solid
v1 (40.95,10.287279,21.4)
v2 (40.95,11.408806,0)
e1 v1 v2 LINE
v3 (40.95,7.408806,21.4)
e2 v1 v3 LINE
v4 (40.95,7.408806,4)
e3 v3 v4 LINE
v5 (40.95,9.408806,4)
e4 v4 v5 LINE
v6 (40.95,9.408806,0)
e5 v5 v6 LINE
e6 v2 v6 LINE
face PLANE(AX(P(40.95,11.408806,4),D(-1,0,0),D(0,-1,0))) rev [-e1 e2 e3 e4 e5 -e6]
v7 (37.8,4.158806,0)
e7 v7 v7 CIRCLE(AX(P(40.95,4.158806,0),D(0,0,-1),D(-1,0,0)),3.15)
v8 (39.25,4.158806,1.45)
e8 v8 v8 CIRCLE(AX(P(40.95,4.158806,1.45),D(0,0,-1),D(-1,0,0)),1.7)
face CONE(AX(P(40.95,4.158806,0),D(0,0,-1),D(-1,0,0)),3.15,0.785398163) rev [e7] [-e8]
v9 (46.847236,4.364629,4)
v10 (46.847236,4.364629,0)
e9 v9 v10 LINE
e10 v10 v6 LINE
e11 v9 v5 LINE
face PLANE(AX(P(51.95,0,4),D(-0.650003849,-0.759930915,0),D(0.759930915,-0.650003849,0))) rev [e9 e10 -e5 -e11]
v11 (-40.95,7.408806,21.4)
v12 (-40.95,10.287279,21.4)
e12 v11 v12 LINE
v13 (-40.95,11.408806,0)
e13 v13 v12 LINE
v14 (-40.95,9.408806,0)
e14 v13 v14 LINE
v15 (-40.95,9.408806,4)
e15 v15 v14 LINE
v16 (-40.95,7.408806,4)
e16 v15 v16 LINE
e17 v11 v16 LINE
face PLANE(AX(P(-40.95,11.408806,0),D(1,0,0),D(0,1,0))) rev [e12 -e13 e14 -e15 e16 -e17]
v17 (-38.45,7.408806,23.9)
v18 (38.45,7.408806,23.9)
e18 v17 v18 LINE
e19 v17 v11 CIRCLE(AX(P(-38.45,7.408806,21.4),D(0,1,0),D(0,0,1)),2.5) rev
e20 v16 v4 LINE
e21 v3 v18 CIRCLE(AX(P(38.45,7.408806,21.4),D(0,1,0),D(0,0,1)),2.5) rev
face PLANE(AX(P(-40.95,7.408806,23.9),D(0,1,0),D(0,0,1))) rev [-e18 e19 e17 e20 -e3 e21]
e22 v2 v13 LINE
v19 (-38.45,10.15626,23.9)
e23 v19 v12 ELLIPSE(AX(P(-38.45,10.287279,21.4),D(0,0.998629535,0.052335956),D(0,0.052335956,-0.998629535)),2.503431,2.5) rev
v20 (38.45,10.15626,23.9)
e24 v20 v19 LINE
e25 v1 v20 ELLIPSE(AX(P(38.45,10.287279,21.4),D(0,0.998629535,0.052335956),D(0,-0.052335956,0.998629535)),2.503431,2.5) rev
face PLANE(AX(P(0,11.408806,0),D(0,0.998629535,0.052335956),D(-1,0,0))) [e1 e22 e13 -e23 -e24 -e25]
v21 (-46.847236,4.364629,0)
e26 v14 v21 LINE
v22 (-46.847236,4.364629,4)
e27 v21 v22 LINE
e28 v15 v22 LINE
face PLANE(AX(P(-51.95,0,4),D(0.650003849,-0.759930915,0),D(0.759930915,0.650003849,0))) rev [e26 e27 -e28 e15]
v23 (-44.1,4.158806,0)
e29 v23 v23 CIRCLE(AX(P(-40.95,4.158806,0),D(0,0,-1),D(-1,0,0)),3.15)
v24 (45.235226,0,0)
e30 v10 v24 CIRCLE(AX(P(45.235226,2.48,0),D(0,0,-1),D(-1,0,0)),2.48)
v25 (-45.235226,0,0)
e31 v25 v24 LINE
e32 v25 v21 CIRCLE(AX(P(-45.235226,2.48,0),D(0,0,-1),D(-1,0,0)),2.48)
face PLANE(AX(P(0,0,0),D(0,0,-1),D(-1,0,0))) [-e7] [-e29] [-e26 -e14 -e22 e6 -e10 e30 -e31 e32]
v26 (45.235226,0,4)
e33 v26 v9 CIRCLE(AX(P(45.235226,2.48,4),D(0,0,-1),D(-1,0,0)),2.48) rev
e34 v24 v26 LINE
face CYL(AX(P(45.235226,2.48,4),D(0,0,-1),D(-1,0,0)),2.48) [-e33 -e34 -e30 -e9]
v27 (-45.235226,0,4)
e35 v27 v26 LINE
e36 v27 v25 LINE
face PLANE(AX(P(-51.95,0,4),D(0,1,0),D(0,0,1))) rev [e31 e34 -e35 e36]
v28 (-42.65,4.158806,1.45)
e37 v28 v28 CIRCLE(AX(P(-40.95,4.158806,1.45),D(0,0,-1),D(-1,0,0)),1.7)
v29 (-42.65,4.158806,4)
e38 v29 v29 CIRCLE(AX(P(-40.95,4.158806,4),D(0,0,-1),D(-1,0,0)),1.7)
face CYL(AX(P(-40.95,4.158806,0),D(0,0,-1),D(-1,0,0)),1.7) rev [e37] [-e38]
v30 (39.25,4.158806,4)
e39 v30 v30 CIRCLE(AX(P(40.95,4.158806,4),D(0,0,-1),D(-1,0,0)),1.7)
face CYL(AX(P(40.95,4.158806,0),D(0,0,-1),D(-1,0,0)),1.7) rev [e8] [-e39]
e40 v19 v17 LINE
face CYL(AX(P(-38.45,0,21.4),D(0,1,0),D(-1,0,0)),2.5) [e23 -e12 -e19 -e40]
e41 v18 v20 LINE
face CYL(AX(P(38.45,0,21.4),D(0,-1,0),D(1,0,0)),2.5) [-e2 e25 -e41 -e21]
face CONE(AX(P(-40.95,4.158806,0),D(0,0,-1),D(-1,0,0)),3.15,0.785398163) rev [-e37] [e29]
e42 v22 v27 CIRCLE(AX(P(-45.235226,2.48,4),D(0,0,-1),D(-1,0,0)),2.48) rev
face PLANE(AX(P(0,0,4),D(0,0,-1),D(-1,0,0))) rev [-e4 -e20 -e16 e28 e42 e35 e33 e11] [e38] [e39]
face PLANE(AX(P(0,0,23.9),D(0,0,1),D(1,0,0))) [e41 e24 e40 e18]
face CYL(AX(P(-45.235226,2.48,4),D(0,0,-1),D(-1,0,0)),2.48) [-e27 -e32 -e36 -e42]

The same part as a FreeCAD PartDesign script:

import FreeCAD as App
import Part
import Sketcher

V = App.Vector
Q = App.Units.Quantity


def edges_at(feature, points):
    """Names of the edges that pass closest to the given points."""
    edges = feature.Shape.Edges
    near = lambda p: min(range(len(edges)), key=lambda i: edges[i].distToShape(Part.Vertex(*p))[0])
    return sorted({f"Edge{near(p) + 1}" for p in points})

doc = App.newDocument("Part")
body = doc.addObject("PartDesign::Body", "Body")

sketch1 = doc.addObject("Sketcher::SketchObject", "Sketch")
body.addObject(sketch1)
sketch1.AttachmentSupport = (doc.XY_Plane, [""])
sketch1.MapMode = "FlatFace"
sketch1.addGeometry(Part.LineSegment(V(-52, 0, 0), V(52, 0, 0)), False)
sketch1.addGeometry(Part.LineSegment(V(52, 0, 0), V(41, 9, 0)), False)
sketch1.addGeometry(Part.LineSegment(V(41, 9, 0), V(-41, 9, 0)), False)
sketch1.addGeometry(Part.LineSegment(V(-41, 9, 0), V(-52, 0, 0)), False)
sketch1.addConstraint(Sketcher.Constraint("Coincident", 0, 2, 1, 1))
sketch1.addConstraint(Sketcher.Constraint("Coincident", 1, 2, 2, 1))
sketch1.addConstraint(Sketcher.Constraint("Coincident", 2, 2, 3, 1))
sketch1.addConstraint(Sketcher.Constraint("Coincident", 3, 2, 0, 1))
sketch1.addConstraint(Sketcher.Constraint("Horizontal", 0))
sketch1.addConstraint(Sketcher.Constraint("Horizontal", 2))
sketch1.addConstraint(Sketcher.Constraint("Symmetric", 0, 2, 3, 2, -1, 1))
sketch1.addConstraint(Sketcher.Constraint("Equal", 1, 3))
sketch1.addConstraint(Sketcher.Constraint("DistanceX", 0, 1, 0, 2, Q("103.9 mm")))
sketch1.addConstraint(Sketcher.Constraint("DistanceX", 2, 2, 2, 1, Q("81.9 mm")))
sketch1.addConstraint(Sketcher.Constraint("Distance", 1, Q("14.475 mm")))
pad1 = doc.addObject("PartDesign::Pad", "Pad")
body.addObject(pad1)
pad1.Profile = sketch1
pad1.Length = 4
doc.recompute()

fillet = doc.addObject("PartDesign::Fillet", "Fillet")
body.addObject(fillet)
fillet.Base = (pad1, edges_at(pad1, [(51.95, 0, 2), (-51.95, 0, 2)]))
fillet.Radius = 2.48

sketch2 = doc.addObject("Sketcher::SketchObject", "Sketch001")
body.addObject(sketch2)
sketch2.AttachmentSupport = (doc.XZ_Plane, [""])
sketch2.MapMode = "FlatFace"
sketch2.AttachmentOffset = App.Placement(V(0, 0, -9.408806), App.Rotation())
sketch2.addGeometry(Part.LineSegment(V(-41, 0, 0), V(-41, 4, 0)), False)
sketch2.addGeometry(Part.LineSegment(V(-41, 4, 0), V(41, 4, 0)), False)
sketch2.addGeometry(Part.LineSegment(V(41, 4, 0), V(41, 0, 0)), False)
sketch2.addGeometry(Part.LineSegment(V(41, 0, 0), V(-41, 0, 0)), False)
sketch2.addConstraint(Sketcher.Constraint("Coincident", 0, 2, 1, 1))
sketch2.addConstraint(Sketcher.Constraint("Coincident", 1, 2, 2, 1))
sketch2.addConstraint(Sketcher.Constraint("Coincident", 2, 2, 3, 1))
sketch2.addConstraint(Sketcher.Constraint("Coincident", 3, 2, 0, 1))
sketch2.addConstraint(Sketcher.Constraint("Vertical", 0))
sketch2.addConstraint(Sketcher.Constraint("Horizontal", 1))
sketch2.addConstraint(Sketcher.Constraint("Vertical", 2))
sketch2.addConstraint(Sketcher.Constraint("Horizontal", 3))
sketch2.addConstraint(Sketcher.Constraint("Symmetric", 2, 2, 3, 2, -1, 1))
sketch2.addConstraint(Sketcher.Constraint("DistanceY", 0, 1, 0, 2, Q("4 mm")))
sketch2.addConstraint(Sketcher.Constraint("DistanceX", 1, 1, 1, 2, Q("81.9 mm")))
pad2 = doc.addObject("PartDesign::Pad", "Pad001")
body.addObject(pad2)
pad2.Profile = sketch2
pad2.Length = 2
pad2.Reversed = True

sketch3 = doc.addObject("Sketcher::SketchObject", "Sketch002")
body.addObject(sketch3)
sketch3.AttachmentSupport = (doc.XY_Plane, [""])
sketch3.MapMode = "FlatFace"
sketch3.AttachmentOffset = App.Placement(V(0, 0, 4), App.Rotation())
sketch3.addGeometry(Part.LineSegment(V(-41, 11.4, 0), V(-41, 7.4, 0)), False)
sketch3.addGeometry(Part.LineSegment(V(-41, 7.4, 0), V(41, 7.4, 0)), False)
sketch3.addGeometry(Part.LineSegment(V(41, 7.4, 0), V(41, 11.4, 0)), False)
sketch3.addGeometry(Part.LineSegment(V(41, 11.4, 0), V(-41, 11.4, 0)), False)
sketch3.addConstraint(Sketcher.Constraint("Coincident", 0, 2, 1, 1))
sketch3.addConstraint(Sketcher.Constraint("Coincident", 1, 2, 2, 1))
sketch3.addConstraint(Sketcher.Constraint("Coincident", 2, 2, 3, 1))
sketch3.addConstraint(Sketcher.Constraint("Coincident", 3, 2, 0, 1))
sketch3.addConstraint(Sketcher.Constraint("Vertical", 0))
sketch3.addConstraint(Sketcher.Constraint("Horizontal", 1))
sketch3.addConstraint(Sketcher.Constraint("Vertical", 2))
sketch3.addConstraint(Sketcher.Constraint("Horizontal", 3))
sketch3.addConstraint(Sketcher.Constraint("DistanceY", 0, 2, 0, 1, Q("4 mm")))
sketch3.addConstraint(Sketcher.Constraint("DistanceX", 1, 1, 1, 2, Q("81.9 mm")))
sketch3.addConstraint(Sketcher.Constraint("DistanceX", 0, 2, -1, 1, Q("40.95 mm")))
sketch3.addConstraint(Sketcher.Constraint("DistanceY", -1, 1, 0, 2, Q("7.408806 mm")))
pad3 = doc.addObject("PartDesign::Pad", "Pad002")
body.addObject(pad3)
pad3.Profile = sketch3
pad3.Length = 19.9
doc.recompute()

fillet2 = doc.addObject("PartDesign::Fillet", "Fillet001")
body.addObject(fillet2)
fillet2.Base = (pad3, edges_at(pad3, [(-40.95, 9.409, 23.9), (40.95, 9.409, 23.9)]))
fillet2.Radius = 2.5

sketch4 = doc.addObject("Sketcher::SketchObject", "Sketch003")
body.addObject(sketch4)
sketch4.AttachmentSupport = (doc.XZ_Plane, [""])
sketch4.MapMode = "FlatFace"
sketch4.AttachmentOffset = App.Placement(V(0, 0, -11.408806), App.Rotation())
sketch4.addGeometry(Part.LineSegment(V(-41, 0, 0), V(-41, 36, 0)), False)
sketch4.addGeometry(Part.LineSegment(V(-41, 36, 0), V(41, 36, 0)), False)
sketch4.addGeometry(Part.LineSegment(V(41, 36, 0), V(41, 0, 0)), False)
sketch4.addGeometry(Part.LineSegment(V(41, 0, 0), V(-41, 0, 0)), False)
sketch4.addConstraint(Sketcher.Constraint("Coincident", 0, 2, 1, 1))
sketch4.addConstraint(Sketcher.Constraint("Coincident", 1, 2, 2, 1))
sketch4.addConstraint(Sketcher.Constraint("Coincident", 2, 2, 3, 1))
sketch4.addConstraint(Sketcher.Constraint("Coincident", 3, 2, 0, 1))
sketch4.addConstraint(Sketcher.Constraint("Vertical", 0))
sketch4.addConstraint(Sketcher.Constraint("Horizontal", 1))
sketch4.addConstraint(Sketcher.Constraint("Vertical", 2))
sketch4.addConstraint(Sketcher.Constraint("Horizontal", 3))
sketch4.addConstraint(Sketcher.Constraint("Symmetric", 2, 2, 3, 2, -1, 1))
sketch4.addConstraint(Sketcher.Constraint("DistanceX", 1, 1, 1, 2, Q("81.9 mm")))
sketch4.addConstraint(Sketcher.Constraint("DistanceY", 0, 1, 0, 2, Q("35.801675 mm")))
groove = doc.addObject("PartDesign::Groove", "Groove")
body.addObject(groove)
groove.Profile = sketch4
groove.ReferenceAxis = (sketch4, ["H_Axis"])
groove.Angle = 3

sketch5 = doc.addObject("Sketcher::SketchObject", "Sketch004")
body.addObject(sketch5)
sketch5.AttachmentSupport = (doc.XY_Plane, [""])
sketch5.MapMode = "FlatFace"
sketch5.addGeometry(Part.Circle(V(41, 4.2, 0), V(0, 0, 1), 1.7), False)
sketch5.addGeometry(Part.Circle(V(-41, 4.2, 0), V(0, 0, 1), 1.7), False)
sketch5.addConstraint(Sketcher.Constraint("Equal", 0, 1))
sketch5.addConstraint(Sketcher.Constraint("Symmetric", 0, 3, 1, 3, -2))
sketch5.addConstraint(Sketcher.Constraint("Diameter", 0, Q("3.4 mm")))
sketch5.addConstraint(Sketcher.Constraint("DistanceX", 1, 3, 0, 3, Q("81.9 mm")))
sketch5.addConstraint(Sketcher.Constraint("DistanceY", -1, 1, 0, 3, Q("4.158806 mm")))
doc.recompute()
hole = doc.addObject("PartDesign::Hole", "Hole")
body.addObject(hole)
hole.Profile = sketch5
hole.ThreadType = "None"
hole.Diameter = 3.4
hole.DepthType = "Dimension"
hole.Depth = 10.1
hole.DrillPoint = "Angled"
hole.DrillPointAngle = 118
hole.HoleCutType = "Countersink"
hole.HoleCutDiameter = 6.3
hole.HoleCutCountersinkAngle = 90
hole.Reversed = True

doc.recompute()
